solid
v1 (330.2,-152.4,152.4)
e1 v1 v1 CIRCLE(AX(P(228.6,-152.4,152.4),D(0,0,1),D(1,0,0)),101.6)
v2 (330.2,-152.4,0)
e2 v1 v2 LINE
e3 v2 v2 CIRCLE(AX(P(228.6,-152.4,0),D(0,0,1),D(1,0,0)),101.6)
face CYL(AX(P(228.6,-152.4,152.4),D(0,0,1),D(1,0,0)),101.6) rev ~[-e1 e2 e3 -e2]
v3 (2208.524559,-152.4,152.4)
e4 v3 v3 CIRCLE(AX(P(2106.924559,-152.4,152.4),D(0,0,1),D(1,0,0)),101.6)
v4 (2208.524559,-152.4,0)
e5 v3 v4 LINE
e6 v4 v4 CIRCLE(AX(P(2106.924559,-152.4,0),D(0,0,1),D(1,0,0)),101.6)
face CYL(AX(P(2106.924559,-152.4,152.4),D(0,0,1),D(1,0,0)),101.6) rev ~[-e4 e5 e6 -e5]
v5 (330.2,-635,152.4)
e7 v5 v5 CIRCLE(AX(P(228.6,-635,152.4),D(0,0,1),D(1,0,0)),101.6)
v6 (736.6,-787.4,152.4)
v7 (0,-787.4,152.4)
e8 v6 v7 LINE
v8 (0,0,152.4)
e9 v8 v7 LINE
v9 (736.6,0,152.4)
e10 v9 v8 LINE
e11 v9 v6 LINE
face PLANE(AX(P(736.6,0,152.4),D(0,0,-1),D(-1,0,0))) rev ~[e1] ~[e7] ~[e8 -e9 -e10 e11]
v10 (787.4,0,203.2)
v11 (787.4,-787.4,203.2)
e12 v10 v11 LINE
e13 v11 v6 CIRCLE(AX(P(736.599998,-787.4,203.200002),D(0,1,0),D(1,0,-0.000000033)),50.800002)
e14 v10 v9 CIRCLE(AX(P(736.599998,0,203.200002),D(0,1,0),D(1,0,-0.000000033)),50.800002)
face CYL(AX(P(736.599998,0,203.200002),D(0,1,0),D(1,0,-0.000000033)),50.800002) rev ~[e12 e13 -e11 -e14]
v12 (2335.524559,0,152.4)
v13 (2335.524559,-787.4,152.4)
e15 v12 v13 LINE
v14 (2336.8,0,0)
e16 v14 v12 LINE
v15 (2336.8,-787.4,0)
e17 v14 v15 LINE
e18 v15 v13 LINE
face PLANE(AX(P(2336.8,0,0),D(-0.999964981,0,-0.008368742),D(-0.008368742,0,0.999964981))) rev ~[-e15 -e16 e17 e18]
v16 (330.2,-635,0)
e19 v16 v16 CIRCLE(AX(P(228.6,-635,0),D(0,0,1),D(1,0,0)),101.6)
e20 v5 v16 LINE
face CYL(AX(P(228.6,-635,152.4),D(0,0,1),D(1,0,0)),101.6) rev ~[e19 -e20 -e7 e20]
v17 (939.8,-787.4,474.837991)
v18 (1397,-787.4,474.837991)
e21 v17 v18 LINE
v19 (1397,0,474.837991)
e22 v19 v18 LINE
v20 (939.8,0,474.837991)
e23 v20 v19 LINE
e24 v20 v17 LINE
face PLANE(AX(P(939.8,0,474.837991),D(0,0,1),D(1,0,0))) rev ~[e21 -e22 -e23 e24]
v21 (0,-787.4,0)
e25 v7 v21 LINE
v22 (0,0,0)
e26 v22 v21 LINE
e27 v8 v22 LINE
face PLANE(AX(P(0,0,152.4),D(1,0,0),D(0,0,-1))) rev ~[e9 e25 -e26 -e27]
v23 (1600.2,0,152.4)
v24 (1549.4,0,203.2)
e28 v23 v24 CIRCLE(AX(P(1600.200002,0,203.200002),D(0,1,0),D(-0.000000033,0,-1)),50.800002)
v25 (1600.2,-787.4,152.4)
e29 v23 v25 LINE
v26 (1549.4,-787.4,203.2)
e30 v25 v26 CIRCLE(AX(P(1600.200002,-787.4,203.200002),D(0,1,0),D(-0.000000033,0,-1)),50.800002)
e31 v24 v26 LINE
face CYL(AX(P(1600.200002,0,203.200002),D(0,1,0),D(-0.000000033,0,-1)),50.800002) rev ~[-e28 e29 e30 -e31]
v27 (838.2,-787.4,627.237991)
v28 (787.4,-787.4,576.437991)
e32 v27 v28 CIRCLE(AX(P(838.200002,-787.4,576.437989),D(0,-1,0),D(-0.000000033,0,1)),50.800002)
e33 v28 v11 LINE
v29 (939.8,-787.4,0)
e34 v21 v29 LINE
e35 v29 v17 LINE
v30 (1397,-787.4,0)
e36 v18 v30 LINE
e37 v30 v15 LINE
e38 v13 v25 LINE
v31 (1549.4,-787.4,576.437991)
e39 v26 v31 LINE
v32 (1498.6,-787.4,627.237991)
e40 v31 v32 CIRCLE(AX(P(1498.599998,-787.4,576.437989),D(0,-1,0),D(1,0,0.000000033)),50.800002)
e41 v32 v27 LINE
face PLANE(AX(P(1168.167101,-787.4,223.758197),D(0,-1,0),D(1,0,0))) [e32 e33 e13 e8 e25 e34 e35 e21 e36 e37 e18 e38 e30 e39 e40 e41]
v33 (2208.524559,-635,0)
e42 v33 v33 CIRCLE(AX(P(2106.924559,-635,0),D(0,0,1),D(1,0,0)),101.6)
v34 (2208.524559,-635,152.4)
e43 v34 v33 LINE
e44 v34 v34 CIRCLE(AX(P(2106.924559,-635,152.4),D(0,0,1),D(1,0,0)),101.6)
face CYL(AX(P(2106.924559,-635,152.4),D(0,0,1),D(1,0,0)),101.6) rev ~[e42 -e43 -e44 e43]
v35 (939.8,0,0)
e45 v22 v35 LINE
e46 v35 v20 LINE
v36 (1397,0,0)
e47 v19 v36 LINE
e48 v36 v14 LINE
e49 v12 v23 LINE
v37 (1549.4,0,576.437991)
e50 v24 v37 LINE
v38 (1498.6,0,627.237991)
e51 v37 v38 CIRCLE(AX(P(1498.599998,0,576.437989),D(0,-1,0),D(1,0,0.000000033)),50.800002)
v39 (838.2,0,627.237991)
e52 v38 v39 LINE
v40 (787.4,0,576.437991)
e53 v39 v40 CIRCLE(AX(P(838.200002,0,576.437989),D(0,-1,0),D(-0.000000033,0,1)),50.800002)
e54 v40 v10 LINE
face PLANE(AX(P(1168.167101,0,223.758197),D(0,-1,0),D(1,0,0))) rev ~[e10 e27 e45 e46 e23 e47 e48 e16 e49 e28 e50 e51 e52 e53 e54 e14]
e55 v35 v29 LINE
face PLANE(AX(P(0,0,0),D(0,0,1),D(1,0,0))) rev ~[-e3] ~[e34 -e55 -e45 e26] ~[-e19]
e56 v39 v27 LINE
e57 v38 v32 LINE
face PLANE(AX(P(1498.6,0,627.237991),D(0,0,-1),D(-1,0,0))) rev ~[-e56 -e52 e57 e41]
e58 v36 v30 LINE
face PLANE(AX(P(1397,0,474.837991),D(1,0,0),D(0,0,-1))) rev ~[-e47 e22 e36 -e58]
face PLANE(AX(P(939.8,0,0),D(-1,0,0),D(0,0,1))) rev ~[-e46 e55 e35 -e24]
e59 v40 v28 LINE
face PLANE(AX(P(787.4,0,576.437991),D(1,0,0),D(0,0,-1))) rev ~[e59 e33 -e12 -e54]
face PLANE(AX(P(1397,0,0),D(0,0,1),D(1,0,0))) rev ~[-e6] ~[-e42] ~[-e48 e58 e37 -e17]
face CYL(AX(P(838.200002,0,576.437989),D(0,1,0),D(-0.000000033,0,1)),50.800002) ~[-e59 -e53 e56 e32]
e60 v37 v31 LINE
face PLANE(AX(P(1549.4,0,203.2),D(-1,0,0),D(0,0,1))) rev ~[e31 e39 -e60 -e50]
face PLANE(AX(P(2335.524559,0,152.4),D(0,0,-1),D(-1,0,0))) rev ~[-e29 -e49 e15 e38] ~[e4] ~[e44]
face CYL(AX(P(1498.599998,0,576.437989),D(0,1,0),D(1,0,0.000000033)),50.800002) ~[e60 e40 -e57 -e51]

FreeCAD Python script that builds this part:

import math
import FreeCAD as App
import Part
import Sketcher

V = App.Vector
Q = App.Units.Quantity

doc = App.newDocument("Part")
params = doc.addObject("Spreadsheet::Sheet", "Params")
for row, (alias, value) in enumerate([
    ("sketch1_radius", "2.0000001 in"),
    ("sketch1_width", "37 in"),
    ("sketch1_width2", "18 in"),
    ("sketch1_width3", "26 in"),
    ("sketch1_width4", "29 in"),
    ("pad1_length", "31 in"),
    ("sketch2_diameter", "8 in"),
], start=1):
    params.set(f"A{row}", alias)
    params.set(f"B{row}", "=" + value)
    params.setAlias(f"B{row}", alias)

body = doc.addObject("PartDesign::Body", "Body")

sketch1 = body.newObject("Sketcher::SketchObject", "Sketch")
sketch1.AttachmentSupport = (doc.getObject("XZ_Plane"), [""])
sketch1.MapMode = "FlatFace"
sketch1.addGeometry(Part.LineSegment(V(0, 152, 0), V(0, 0, 0)), False)
sketch1.addGeometry(Part.LineSegment(V(0, 0, 0), V(940, 0, 0)), False)
sketch1.addGeometry(Part.LineSegment(V(940, 0, 0), V(940, 475, 0)), False)
sketch1.addGeometry(Part.LineSegment(V(940, 475, 0), V(1397, 475, 0)), False)
sketch1.addGeometry(Part.LineSegment(V(1397, 475, 0), V(1397, 0, 0)), False)
sketch1.addGeometry(Part.LineSegment(V(1397, 0, 0), V(2337, 0, 0)), False)
sketch1.addGeometry(Part.LineSegment(V(2337, 0, 0), V(2336, 152, 0)), False)
sketch1.addGeometry(Part.LineSegment(V(2336, 152, 0), V(1600, 152, 0)), False)
sketch1.addGeometry(Part.ArcOfCircle(Part.Circle(V(1600, 203, 0), V(0, 0, 1), 51), math.radians(-180), math.radians(-90)), False)
sketch1.addGeometry(Part.LineSegment(V(1549, 203, 0), V(1549, 576, 0)), False)
sketch1.addGeometry(Part.ArcOfCircle(Part.Circle(V(1499, 576, 0), V(0, 0, 1), 51), math.radians(0), math.radians(90)), False)
sketch1.addGeometry(Part.LineSegment(V(1499, 627, 0), V(838, 627, 0)), False)
sketch1.addGeometry(Part.ArcOfCircle(Part.Circle(V(838, 576, 0), V(0, 0, 1), 51), math.radians(90), math.radians(180)), False)
sketch1.addGeometry(Part.LineSegment(V(787, 576, 0), V(787, 203, 0)), False)
sketch1.addGeometry(Part.ArcOfCircle(Part.Circle(V(737, 203, 0), V(0, 0, 1), 51), math.radians(-90), math.radians(0)), False)
sketch1.addGeometry(Part.LineSegment(V(737, 152, 0), V(0, 152, 0)), False)
sketch1.addConstraint(Sketcher.Constraint("Coincident", 0, 2, 1, 1))
sketch1.addConstraint(Sketcher.Constraint("Coincident", 1, 2, 2, 1))
sketch1.addConstraint(Sketcher.Constraint("Coincident", 2, 2, 3, 1))
sketch1.addConstraint(Sketcher.Constraint("Coincident", 3, 2, 4, 1))
sketch1.addConstraint(Sketcher.Constraint("Coincident", 4, 2, 5, 1))
sketch1.addConstraint(Sketcher.Constraint("Coincident", 5, 2, 6, 1))
sketch1.addConstraint(Sketcher.Constraint("Coincident", 6, 2, 7, 1))
sketch1.addConstraint(Sketcher.Constraint("Tangent", 7, 2, 8, 2))
sketch1.addConstraint(Sketcher.Constraint("Tangent", 8, 1, 9, 1))
sketch1.addConstraint(Sketcher.Constraint("Tangent", 9, 2, 10, 1))
sketch1.addConstraint(Sketcher.Constraint("Tangent", 10, 2, 11, 1))
sketch1.addConstraint(Sketcher.Constraint("Tangent", 11, 2, 12, 1))
sketch1.addConstraint(Sketcher.Constraint("Tangent", 12, 2, 13, 1))
sketch1.addConstraint(Sketcher.Constraint("Tangent", 13, 2, 14, 2))
sketch1.addConstraint(Sketcher.Constraint("Tangent", 14, 1, 15, 1))
sketch1.addConstraint(Sketcher.Constraint("Coincident", 15, 2, 0, 1))
sketch1.addConstraint(Sketcher.Constraint("Vertical", 0))
sketch1.addConstraint(Sketcher.Constraint("Horizontal", 1))
sketch1.addConstraint(Sketcher.Constraint("Vertical", 2))
sketch1.addConstraint(Sketcher.Constraint("Horizontal", 3))
sketch1.addConstraint(Sketcher.Constraint("Vertical", 4))
sketch1.addConstraint(Sketcher.Constraint("Horizontal", 5))
sketch1.addConstraint(Sketcher.Constraint("Horizontal", 7))
sketch1.addConstraint(Sketcher.Constraint("Vertical", 9))
sketch1.addConstraint(Sketcher.Constraint("Horizontal", 11))
sketch1.addConstraint(Sketcher.Constraint("Vertical", 13))
sketch1.addConstraint(Sketcher.Constraint("Horizontal", 15))
sketch1.addConstraint(Sketcher.Constraint("Coincident", 0, 2, -1, 1))
sketch1.addConstraint(Sketcher.Constraint("Equal", 8, 10))
sketch1.addConstraint(Sketcher.Constraint("Equal", 10, 12))
sketch1.addConstraint(Sketcher.Constraint("Equal", 12, 14))
sketch1.addConstraint(Sketcher.Constraint("PointOnObject", 4, 2, -1))
sketch1.addConstraint(Sketcher.Constraint("Horizontal", 8, 3, 14, 3))
sketch1.addConstraint(Sketcher.Constraint("Equal", 1, 5))
sketch1.addConstraint(Sketcher.Constraint("Radius", 8, Q("2.0000001 in")))
sketch1.addConstraint(Sketcher.Constraint("DistanceX", 1, 1, 1, 2, Q("37 in")))
sketch1.addConstraint(Sketcher.Constraint("DistanceX", 3, 1, 3, 2, Q("18 in")))
sketch1.addConstraint(Sketcher.Constraint("DistanceX", 11, 2, 11, 1, Q("26 in")))
sketch1.addConstraint(Sketcher.Constraint("DistanceX", 15, 2, 15, 1, Q("29 in")))
sketch1.addConstraint(Sketcher.Constraint("DistanceY", 0, 2, 0, 1, Q("6 in")))
sketch1.addConstraint(Sketcher.Constraint("DistanceY", 2, 2, 12, 3, Q("3.9999999 in")))
sketch1.addConstraint(Sketcher.Constraint("DistanceX", 7, 2, 7, 1, 735.324559))
sketch1.addConstraint(Sketcher.Constraint("DistanceY", 2, 1, 2, 2, 474.837991))
sketch1.setExpression("Constraints[34]", "Params.sketch1_radius")
sketch1.setExpression("Constraints[35]", "Params.sketch1_width")
sketch1.setExpression("Constraints[36]", "Params.sketch1_width2")
sketch1.setExpression("Constraints[37]", "Params.sketch1_width3")
sketch1.setExpression("Constraints[38]", "Params.sketch1_width4")
pad1 = body.newObject("PartDesign::Pad", "Pad")
pad1.Profile = sketch1
pad1.setExpression("Length", "Params.pad1_length")

sketch2 = body.newObject("Sketcher::SketchObject", "Sketch001")
sketch2.AttachmentSupport = (doc.getObject("XY_Plane"), [""])
sketch2.MapMode = "FlatFace"
sketch2.AttachmentOffset = App.Placement(V(0, 0, 6 * 25.4), App.Rotation())
sketch2.addGeometry(Part.Circle(V(229, -635, 0), V(0, 0, 1), 102), False)
sketch2.addGeometry(Part.Circle(V(2107, -152, 0), V(0, 0, 1), 102), False)
sketch2.addGeometry(Part.Circle(V(2107, -635, 0), V(0, 0, 1), 102), False)
sketch2.addGeometry(Part.Circle(V(229, -152, 0), V(0, 0, 1), 102), False)
sketch2.addConstraint(Sketcher.Constraint("Equal", 0, 1))
sketch2.addConstraint(Sketcher.Constraint("Equal", 1, 2))
sketch2.addConstraint(Sketcher.Constraint("Equal", 2, 3))
sketch2.addConstraint(Sketcher.Constraint("Horizontal", 0, 3, 2, 3))
sketch2.addConstraint(Sketcher.Constraint("Horizontal", 1, 3, 3, 3))
sketch2.addConstraint(Sketcher.Constraint("Vertical", 1, 3, 2, 3))
sketch2.addConstraint(Sketcher.Constraint("Vertical", 0, 3, 3, 3))
sketch2.addConstraint(Sketcher.Constraint("Diameter", 0, Q("8 in")))
sketch2.addConstraint(Sketcher.Constraint("DistanceX", -1, 1, 0, 3, Q("9 in")))
sketch2.addConstraint(Sketcher.Constraint("DistanceY", 0, 3, -1, 1, Q("25 in")))
sketch2.addConstraint(Sketcher.Constraint("DistanceY", 1, 3, -1, 1, Q("6 in")))
sketch2.addConstraint(Sketcher.Constraint("DistanceX", -1, 1, 1, 3, 2106.924559))
sketch2.setExpression("Constraints[7]", "Params.sketch2_diameter")
pocket1 = body.newObject("PartDesign::Pocket", "Pocket")
pocket1.Profile = sketch2
pocket1.Type = "ThroughAll"

doc.recompute()
